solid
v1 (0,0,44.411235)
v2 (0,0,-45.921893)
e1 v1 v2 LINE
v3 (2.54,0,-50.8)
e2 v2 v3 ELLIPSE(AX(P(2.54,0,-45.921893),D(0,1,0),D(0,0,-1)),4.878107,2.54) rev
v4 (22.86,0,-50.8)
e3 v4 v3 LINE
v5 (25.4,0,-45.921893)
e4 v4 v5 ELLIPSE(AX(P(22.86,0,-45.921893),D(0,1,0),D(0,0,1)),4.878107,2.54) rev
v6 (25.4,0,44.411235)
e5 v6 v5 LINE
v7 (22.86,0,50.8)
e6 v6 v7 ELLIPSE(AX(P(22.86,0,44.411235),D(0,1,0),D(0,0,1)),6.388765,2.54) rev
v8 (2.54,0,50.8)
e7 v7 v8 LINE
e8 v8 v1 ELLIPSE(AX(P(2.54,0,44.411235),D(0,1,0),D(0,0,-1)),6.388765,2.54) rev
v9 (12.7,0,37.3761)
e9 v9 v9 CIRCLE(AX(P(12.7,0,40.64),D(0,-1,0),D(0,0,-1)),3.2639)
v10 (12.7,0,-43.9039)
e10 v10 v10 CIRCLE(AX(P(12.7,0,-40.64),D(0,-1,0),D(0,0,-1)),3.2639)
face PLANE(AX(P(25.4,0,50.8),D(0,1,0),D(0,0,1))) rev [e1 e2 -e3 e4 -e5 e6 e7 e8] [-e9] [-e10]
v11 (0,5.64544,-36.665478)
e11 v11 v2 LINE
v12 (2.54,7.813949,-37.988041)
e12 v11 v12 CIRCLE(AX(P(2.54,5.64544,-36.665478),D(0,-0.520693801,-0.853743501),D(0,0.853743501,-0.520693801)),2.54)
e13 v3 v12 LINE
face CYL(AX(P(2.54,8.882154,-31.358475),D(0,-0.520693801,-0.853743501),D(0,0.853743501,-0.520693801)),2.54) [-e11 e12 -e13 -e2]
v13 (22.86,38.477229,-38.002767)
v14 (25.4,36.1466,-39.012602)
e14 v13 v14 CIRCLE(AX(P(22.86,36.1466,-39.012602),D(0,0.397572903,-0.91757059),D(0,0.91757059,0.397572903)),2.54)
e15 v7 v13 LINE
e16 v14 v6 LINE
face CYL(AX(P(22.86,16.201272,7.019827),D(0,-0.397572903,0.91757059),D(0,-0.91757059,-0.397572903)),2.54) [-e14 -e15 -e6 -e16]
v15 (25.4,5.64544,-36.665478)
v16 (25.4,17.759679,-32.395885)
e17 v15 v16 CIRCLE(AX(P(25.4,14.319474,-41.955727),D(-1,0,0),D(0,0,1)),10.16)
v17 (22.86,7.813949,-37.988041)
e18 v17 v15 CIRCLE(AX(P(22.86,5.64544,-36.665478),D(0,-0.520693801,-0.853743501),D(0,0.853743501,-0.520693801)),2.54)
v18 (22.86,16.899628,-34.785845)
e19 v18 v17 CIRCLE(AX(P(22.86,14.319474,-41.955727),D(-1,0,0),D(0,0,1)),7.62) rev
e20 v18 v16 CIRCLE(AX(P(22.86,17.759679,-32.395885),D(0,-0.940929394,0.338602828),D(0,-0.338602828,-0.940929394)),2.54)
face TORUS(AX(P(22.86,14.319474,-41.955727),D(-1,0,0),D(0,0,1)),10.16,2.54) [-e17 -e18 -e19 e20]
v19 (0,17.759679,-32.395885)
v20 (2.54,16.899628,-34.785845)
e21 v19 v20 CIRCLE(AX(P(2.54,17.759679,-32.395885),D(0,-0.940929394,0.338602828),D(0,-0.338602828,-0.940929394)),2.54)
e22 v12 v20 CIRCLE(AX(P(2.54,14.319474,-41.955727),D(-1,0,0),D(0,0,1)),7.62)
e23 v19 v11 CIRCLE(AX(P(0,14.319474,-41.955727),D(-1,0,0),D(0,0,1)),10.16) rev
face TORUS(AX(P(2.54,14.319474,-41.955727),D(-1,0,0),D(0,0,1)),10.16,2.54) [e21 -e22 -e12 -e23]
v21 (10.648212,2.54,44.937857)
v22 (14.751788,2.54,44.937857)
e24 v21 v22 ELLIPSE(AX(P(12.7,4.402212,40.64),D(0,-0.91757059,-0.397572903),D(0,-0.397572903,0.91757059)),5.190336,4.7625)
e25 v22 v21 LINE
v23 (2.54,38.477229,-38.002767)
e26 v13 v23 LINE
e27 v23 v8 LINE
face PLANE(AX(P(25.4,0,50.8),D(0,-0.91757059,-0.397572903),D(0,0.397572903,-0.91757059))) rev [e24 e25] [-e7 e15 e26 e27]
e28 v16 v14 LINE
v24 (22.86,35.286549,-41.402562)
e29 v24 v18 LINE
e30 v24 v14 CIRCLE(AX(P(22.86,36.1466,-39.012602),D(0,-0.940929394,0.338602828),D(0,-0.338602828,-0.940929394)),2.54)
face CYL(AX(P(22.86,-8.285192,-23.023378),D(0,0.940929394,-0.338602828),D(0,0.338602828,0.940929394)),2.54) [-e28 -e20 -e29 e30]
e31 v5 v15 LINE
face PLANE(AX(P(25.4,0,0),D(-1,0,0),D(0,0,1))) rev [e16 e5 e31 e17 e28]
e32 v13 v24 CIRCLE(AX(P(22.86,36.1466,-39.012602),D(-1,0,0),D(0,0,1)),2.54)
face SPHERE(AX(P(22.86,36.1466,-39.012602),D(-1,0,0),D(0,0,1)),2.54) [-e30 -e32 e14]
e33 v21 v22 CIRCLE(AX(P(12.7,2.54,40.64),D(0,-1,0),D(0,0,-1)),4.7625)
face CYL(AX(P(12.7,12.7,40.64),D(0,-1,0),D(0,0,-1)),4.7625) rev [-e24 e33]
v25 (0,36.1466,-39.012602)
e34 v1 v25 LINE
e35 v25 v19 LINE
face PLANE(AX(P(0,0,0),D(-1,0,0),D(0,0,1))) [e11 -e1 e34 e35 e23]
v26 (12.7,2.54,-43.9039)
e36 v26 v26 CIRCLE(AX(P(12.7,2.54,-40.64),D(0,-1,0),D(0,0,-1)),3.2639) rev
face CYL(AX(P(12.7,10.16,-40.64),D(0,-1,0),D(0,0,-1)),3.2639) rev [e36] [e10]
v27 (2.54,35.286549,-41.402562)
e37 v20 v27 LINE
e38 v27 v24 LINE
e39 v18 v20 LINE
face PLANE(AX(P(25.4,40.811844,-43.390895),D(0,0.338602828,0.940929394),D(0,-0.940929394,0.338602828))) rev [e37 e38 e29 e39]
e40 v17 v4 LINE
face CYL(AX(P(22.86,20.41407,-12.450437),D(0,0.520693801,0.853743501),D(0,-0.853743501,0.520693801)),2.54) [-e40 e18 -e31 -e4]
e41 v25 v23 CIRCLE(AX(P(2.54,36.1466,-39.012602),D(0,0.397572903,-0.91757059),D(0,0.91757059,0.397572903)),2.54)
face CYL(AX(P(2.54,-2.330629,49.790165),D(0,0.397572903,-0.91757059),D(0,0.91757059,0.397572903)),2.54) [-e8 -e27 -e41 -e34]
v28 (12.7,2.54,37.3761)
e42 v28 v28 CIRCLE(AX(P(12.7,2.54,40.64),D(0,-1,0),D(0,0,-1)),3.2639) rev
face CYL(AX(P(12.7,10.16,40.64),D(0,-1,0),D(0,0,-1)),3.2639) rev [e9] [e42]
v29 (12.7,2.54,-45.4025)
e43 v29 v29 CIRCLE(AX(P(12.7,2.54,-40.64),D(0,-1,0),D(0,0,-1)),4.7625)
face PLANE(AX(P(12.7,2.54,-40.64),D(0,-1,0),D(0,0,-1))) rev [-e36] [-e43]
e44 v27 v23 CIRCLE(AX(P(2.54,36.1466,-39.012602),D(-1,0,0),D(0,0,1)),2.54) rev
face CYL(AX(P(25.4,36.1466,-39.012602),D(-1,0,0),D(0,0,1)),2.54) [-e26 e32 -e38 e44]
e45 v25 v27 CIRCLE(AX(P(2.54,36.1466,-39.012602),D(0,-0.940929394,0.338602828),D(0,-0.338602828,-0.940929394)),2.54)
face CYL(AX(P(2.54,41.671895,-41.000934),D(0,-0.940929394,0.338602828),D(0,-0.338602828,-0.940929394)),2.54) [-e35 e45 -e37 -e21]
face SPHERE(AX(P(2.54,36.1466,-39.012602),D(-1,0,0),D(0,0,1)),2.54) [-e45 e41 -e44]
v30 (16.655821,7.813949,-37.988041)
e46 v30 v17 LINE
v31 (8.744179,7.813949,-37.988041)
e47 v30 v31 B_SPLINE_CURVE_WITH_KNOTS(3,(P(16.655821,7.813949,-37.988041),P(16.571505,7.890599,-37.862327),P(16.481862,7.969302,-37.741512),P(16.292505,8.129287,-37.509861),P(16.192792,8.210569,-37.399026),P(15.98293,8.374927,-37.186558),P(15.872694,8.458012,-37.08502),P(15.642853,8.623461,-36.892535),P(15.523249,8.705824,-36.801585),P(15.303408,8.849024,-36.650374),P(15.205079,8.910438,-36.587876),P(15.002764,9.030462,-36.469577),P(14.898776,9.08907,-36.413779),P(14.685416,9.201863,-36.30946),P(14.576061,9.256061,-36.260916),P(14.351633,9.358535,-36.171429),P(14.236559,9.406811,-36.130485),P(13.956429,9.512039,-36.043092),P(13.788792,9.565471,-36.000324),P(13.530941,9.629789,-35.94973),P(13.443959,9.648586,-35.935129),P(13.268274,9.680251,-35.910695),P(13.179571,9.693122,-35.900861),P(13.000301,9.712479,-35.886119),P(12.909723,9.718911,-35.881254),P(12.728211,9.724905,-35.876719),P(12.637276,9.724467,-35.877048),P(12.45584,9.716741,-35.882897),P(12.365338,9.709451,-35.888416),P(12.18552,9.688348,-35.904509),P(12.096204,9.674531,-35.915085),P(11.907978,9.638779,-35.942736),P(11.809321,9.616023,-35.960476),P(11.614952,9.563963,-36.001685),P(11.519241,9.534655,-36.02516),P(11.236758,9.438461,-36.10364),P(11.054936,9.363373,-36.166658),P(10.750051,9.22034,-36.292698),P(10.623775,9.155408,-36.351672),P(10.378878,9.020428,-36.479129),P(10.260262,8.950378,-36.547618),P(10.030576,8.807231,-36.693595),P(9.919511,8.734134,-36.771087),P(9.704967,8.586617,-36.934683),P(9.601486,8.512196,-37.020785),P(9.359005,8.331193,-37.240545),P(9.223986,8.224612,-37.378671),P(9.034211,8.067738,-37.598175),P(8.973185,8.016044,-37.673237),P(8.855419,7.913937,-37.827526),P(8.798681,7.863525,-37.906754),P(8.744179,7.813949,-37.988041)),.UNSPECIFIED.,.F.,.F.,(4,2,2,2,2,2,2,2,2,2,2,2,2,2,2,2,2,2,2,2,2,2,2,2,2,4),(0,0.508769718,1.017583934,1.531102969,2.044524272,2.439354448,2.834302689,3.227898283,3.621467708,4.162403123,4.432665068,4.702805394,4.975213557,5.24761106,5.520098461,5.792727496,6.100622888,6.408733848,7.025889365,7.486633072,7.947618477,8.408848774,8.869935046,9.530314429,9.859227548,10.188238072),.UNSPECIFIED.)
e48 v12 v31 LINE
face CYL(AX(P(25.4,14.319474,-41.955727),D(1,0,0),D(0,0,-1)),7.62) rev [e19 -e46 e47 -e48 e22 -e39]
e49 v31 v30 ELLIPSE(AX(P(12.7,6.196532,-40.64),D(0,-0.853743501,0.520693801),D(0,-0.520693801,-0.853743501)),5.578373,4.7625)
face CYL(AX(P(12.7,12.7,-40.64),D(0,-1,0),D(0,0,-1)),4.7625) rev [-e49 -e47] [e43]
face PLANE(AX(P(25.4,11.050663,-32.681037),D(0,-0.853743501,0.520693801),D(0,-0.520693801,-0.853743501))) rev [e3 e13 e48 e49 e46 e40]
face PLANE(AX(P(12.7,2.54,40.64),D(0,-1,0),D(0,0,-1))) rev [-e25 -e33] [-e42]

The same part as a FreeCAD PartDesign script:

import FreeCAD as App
import Part
import Sketcher

V = App.Vector
Q = App.Units.Quantity


def edges_at(feature, points):
    """Names of the edges that pass closest to the given points."""
    edges = feature.Shape.Edges
    near = lambda p: min(range(len(edges)), key=lambda i: edges[i].distToShape(Part.Vertex(*p))[0])
    return sorted({f"Edge{near(p) + 1}" for p in points})


def add_polygon(sketch, points):
    """Adds a closed chain of lines whose ends are joined by coincident constraints."""
    first, n = sketch.GeometryCount, len(points)
    for a, b in zip(points, points[1:] + points[:1]):
        sketch.addGeometry(Part.LineSegment(App.Vector(*a, 0), App.Vector(*b, 0)), False)
    for i in range(n):
        sketch.addConstraint(Sketcher.Constraint("Coincident", first + i, 2, first + (i + 1) % n, 1))

doc = App.newDocument("Part")
params = doc.addObject("Spreadsheet::Sheet", "Params")
for row, (alias, value) in enumerate([
    ("sketch1_height", "4 in"),
    ("pad1_length", "1 in"),
    ("fillet_radius", "0.3 in"),
    ("fillet2_radius", "0.1 in"),
    ("fillet3_radius", "0.1 in"),
    ("sketch2_diameter", "0.257 in"),
    ("pocket1_length", "0.4 in"),
    ("sketch3_diameter", "0.375 in"),
    ("pocket2_length", "0.4 in"),
], start=1):
    params.set(f"A{row}", alias)
    params.set(f"B{row}", "=" + value)
    params.setAlias(f"B{row}", alias)

body = doc.addObject("PartDesign::Body", "Body")

# Sketch on YZ plane
sketch1 = body.newObject("Sketcher::SketchObject", "Sketch")
sketch1.AttachmentSupport = (doc.getObject("YZ_Plane"), [""])
sketch1.MapMode = "FlatFace"
add_polygon(sketch1, [(0, 51), (0, -51), (11, -33), (41, -43)])  # lines 0-3
sketch1.addConstraint(Sketcher.Constraint("Vertical", 0))
sketch1.addConstraint(Sketcher.Constraint("Symmetric", 0, 2, 3, 2, -1, 1))
sketch1.addConstraint(Sketcher.Constraint("DistanceY", 0, 2, 0, 1, Q("4 in")))
sketch1.addConstraint(Sketcher.Constraint("DistanceX", 1, 2, 2, 2, Q("1.1717 in")))
sketch1.addConstraint(Sketcher.Constraint("Distance", 1, Q("21.222958 mm")))
sketch1.addConstraint(Sketcher.Constraint("Distance", 2, Q("31.629558 mm")))
sketch1.addConstraint(Sketcher.Constraint("Distance", 3, Q("102.652478 mm")))
sketch1.setExpression("Constraints[6]", "Params.sketch1_height")
pad1 = body.newObject("PartDesign::Pad", "Pad")
pad1.Profile = sketch1
pad1.setExpression("Length", "Params.pad1_length")
doc.recompute()

fillet = body.newObject("PartDesign::Fillet", "Fillet")
fillet.Base = (pad1, edges_at(pad1, [(12.7, 11.051, -32.681)]))
fillet.setExpression("Radius", "Params.fillet_radius")
doc.recompute()

fillet2 = body.newObject("PartDesign::Fillet", "Fillet001")
fillet2.Base = (fillet, edges_at(fillet, [(12.7, 40.812, -43.391)]))
fillet2.setExpression("Radius", "Params.fillet2_radius")
doc.recompute()

fillet3 = body.newObject("PartDesign::Fillet", "Fillet002")
fillet3.Base = (fillet2, edges_at(fillet2, [
    (25.4, 3.907, -44.394),
    (0, 26.093, -38.094),
    (25.4, 26.093, -38.094),
    (0, 11.787, -34.769),
    (25.4, 11.787, -34.769),
    (0, 19.239, 6.399),
    (25.4, 19.239, 6.399),
    (0, 37.999, -40.751),
    (25.4, 37.999, -40.751),
    (0, 3.907, -44.394),
]))
fillet3.setExpression("Radius", "Params.fillet3_radius")

# Sketch on XZ plane
sketch2 = body.newObject("Sketcher::SketchObject", "Sketch001")
sketch2.AttachmentSupport = (doc.getObject("XZ_Plane"), [""])
sketch2.MapMode = "FlatFace"
sketch2.addGeometry(Part.Circle(V(12.7, 40.6, 0), V(0, 0, 1), 3.3), False)
sketch2.addGeometry(Part.Circle(V(12.7, -40.6, 0), V(0, 0, 1), 3.3), False)
sketch2.addConstraint(Sketcher.Constraint("Equal", 0, 1))
sketch2.addConstraint(Sketcher.Constraint("Symmetric", 0, 3, 1, 3, -1))
sketch2.addConstraint(Sketcher.Constraint("Diameter", 0, Q("0.257 in")))
sketch2.addConstraint(Sketcher.Constraint("DistanceX", -1, 1, 0, 3, Q("0.5 in")))
sketch2.addConstraint(Sketcher.Constraint("DistanceY", -1, 1, 0, 3, Q("1.6 in")))
sketch2.setExpression("Constraints[2]", "Params.sketch2_diameter")
pocket1 = body.newObject("PartDesign::Pocket", "Pocket")
pocket1.Profile = sketch2
pocket1.setExpression("Length", "Params.pocket1_length")

# Sketch on XZ plane
sketch3 = body.newObject("Sketcher::SketchObject", "Sketch002")
sketch3.AttachmentSupport = (doc.getObject("XZ_Plane"), [""])
sketch3.MapMode = "FlatFace"
sketch3.AttachmentOffset = App.Placement(V(0, 0, -0.1 * 25.4), App.Rotation())
sketch3.addGeometry(Part.Circle(V(12.7, 40.6, 0), V(0, 0, 1), 4.8), False)
sketch3.addGeometry(Part.Circle(V(12.7, -40.6, 0), V(0, 0, 1), 4.8), False)
sketch3.addConstraint(Sketcher.Constraint("Equal", 0, 1))
sketch3.addConstraint(Sketcher.Constraint("Symmetric", 0, 3, 1, 3, -1))
sketch3.addConstraint(Sketcher.Constraint("Diameter", 0, Q("0.375 in")))
sketch3.addConstraint(Sketcher.Constraint("DistanceX", -1, 1, 0, 3, Q("0.5 in")))
sketch3.addConstraint(Sketcher.Constraint("DistanceY", -1, 1, 0, 3, Q("1.6 in")))
sketch3.setExpression("Constraints[2]", "Params.sketch3_diameter")
pocket2 = body.newObject("PartDesign::Pocket", "Pocket001")
pocket2.Profile = sketch3
pocket2.setExpression("Length", "Params.pocket2_length")

doc.recompute()
